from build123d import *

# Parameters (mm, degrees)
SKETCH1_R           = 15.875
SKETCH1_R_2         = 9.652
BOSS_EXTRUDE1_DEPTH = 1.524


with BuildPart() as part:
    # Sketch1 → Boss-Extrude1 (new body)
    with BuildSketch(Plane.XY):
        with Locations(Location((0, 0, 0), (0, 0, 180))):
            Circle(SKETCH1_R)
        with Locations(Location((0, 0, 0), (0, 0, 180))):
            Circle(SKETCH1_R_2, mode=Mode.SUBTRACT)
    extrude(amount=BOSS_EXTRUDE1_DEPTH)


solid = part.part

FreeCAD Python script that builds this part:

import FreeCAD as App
import Part
import Sketcher
from FreeCAD import Vector
Q = App.Units.Quantity

doc = App.newDocument("Part")
body = doc.addObject("PartDesign::Body", "Body")

sketch1 = body.newObject("Sketcher::SketchObject", "Sketch")
sketch1.AttachmentSupport = (doc.getObject("XY_Plane"), [""])
sketch1.MapMode = "FlatFace"
sketch1.addGeometry(Part.Circle(Vector(0, 0, 0), Vector(0, 0, 1), 16), False)
sketch1.addGeometry(Part.Circle(Vector(0, 0, 0), Vector(0, 0, 1), 10), False)
sketch1.addConstraint(Sketcher.Constraint("Coincident", 0, 3, -1, 1))
sketch1.addConstraint(Sketcher.Constraint("Coincident", 1, 3, -1, 1))
sketch1.addConstraint(Sketcher.Constraint("Diameter", 0, Q("1.25 in")))
sketch1.addConstraint(Sketcher.Constraint("Diameter", 1, Q("0.76 in")))
pad1 = body.newObject("PartDesign::Pad", "Pad")
pad1.Profile = sketch1
pad1.Length = Q("0.06 in")

doc.recompute()
